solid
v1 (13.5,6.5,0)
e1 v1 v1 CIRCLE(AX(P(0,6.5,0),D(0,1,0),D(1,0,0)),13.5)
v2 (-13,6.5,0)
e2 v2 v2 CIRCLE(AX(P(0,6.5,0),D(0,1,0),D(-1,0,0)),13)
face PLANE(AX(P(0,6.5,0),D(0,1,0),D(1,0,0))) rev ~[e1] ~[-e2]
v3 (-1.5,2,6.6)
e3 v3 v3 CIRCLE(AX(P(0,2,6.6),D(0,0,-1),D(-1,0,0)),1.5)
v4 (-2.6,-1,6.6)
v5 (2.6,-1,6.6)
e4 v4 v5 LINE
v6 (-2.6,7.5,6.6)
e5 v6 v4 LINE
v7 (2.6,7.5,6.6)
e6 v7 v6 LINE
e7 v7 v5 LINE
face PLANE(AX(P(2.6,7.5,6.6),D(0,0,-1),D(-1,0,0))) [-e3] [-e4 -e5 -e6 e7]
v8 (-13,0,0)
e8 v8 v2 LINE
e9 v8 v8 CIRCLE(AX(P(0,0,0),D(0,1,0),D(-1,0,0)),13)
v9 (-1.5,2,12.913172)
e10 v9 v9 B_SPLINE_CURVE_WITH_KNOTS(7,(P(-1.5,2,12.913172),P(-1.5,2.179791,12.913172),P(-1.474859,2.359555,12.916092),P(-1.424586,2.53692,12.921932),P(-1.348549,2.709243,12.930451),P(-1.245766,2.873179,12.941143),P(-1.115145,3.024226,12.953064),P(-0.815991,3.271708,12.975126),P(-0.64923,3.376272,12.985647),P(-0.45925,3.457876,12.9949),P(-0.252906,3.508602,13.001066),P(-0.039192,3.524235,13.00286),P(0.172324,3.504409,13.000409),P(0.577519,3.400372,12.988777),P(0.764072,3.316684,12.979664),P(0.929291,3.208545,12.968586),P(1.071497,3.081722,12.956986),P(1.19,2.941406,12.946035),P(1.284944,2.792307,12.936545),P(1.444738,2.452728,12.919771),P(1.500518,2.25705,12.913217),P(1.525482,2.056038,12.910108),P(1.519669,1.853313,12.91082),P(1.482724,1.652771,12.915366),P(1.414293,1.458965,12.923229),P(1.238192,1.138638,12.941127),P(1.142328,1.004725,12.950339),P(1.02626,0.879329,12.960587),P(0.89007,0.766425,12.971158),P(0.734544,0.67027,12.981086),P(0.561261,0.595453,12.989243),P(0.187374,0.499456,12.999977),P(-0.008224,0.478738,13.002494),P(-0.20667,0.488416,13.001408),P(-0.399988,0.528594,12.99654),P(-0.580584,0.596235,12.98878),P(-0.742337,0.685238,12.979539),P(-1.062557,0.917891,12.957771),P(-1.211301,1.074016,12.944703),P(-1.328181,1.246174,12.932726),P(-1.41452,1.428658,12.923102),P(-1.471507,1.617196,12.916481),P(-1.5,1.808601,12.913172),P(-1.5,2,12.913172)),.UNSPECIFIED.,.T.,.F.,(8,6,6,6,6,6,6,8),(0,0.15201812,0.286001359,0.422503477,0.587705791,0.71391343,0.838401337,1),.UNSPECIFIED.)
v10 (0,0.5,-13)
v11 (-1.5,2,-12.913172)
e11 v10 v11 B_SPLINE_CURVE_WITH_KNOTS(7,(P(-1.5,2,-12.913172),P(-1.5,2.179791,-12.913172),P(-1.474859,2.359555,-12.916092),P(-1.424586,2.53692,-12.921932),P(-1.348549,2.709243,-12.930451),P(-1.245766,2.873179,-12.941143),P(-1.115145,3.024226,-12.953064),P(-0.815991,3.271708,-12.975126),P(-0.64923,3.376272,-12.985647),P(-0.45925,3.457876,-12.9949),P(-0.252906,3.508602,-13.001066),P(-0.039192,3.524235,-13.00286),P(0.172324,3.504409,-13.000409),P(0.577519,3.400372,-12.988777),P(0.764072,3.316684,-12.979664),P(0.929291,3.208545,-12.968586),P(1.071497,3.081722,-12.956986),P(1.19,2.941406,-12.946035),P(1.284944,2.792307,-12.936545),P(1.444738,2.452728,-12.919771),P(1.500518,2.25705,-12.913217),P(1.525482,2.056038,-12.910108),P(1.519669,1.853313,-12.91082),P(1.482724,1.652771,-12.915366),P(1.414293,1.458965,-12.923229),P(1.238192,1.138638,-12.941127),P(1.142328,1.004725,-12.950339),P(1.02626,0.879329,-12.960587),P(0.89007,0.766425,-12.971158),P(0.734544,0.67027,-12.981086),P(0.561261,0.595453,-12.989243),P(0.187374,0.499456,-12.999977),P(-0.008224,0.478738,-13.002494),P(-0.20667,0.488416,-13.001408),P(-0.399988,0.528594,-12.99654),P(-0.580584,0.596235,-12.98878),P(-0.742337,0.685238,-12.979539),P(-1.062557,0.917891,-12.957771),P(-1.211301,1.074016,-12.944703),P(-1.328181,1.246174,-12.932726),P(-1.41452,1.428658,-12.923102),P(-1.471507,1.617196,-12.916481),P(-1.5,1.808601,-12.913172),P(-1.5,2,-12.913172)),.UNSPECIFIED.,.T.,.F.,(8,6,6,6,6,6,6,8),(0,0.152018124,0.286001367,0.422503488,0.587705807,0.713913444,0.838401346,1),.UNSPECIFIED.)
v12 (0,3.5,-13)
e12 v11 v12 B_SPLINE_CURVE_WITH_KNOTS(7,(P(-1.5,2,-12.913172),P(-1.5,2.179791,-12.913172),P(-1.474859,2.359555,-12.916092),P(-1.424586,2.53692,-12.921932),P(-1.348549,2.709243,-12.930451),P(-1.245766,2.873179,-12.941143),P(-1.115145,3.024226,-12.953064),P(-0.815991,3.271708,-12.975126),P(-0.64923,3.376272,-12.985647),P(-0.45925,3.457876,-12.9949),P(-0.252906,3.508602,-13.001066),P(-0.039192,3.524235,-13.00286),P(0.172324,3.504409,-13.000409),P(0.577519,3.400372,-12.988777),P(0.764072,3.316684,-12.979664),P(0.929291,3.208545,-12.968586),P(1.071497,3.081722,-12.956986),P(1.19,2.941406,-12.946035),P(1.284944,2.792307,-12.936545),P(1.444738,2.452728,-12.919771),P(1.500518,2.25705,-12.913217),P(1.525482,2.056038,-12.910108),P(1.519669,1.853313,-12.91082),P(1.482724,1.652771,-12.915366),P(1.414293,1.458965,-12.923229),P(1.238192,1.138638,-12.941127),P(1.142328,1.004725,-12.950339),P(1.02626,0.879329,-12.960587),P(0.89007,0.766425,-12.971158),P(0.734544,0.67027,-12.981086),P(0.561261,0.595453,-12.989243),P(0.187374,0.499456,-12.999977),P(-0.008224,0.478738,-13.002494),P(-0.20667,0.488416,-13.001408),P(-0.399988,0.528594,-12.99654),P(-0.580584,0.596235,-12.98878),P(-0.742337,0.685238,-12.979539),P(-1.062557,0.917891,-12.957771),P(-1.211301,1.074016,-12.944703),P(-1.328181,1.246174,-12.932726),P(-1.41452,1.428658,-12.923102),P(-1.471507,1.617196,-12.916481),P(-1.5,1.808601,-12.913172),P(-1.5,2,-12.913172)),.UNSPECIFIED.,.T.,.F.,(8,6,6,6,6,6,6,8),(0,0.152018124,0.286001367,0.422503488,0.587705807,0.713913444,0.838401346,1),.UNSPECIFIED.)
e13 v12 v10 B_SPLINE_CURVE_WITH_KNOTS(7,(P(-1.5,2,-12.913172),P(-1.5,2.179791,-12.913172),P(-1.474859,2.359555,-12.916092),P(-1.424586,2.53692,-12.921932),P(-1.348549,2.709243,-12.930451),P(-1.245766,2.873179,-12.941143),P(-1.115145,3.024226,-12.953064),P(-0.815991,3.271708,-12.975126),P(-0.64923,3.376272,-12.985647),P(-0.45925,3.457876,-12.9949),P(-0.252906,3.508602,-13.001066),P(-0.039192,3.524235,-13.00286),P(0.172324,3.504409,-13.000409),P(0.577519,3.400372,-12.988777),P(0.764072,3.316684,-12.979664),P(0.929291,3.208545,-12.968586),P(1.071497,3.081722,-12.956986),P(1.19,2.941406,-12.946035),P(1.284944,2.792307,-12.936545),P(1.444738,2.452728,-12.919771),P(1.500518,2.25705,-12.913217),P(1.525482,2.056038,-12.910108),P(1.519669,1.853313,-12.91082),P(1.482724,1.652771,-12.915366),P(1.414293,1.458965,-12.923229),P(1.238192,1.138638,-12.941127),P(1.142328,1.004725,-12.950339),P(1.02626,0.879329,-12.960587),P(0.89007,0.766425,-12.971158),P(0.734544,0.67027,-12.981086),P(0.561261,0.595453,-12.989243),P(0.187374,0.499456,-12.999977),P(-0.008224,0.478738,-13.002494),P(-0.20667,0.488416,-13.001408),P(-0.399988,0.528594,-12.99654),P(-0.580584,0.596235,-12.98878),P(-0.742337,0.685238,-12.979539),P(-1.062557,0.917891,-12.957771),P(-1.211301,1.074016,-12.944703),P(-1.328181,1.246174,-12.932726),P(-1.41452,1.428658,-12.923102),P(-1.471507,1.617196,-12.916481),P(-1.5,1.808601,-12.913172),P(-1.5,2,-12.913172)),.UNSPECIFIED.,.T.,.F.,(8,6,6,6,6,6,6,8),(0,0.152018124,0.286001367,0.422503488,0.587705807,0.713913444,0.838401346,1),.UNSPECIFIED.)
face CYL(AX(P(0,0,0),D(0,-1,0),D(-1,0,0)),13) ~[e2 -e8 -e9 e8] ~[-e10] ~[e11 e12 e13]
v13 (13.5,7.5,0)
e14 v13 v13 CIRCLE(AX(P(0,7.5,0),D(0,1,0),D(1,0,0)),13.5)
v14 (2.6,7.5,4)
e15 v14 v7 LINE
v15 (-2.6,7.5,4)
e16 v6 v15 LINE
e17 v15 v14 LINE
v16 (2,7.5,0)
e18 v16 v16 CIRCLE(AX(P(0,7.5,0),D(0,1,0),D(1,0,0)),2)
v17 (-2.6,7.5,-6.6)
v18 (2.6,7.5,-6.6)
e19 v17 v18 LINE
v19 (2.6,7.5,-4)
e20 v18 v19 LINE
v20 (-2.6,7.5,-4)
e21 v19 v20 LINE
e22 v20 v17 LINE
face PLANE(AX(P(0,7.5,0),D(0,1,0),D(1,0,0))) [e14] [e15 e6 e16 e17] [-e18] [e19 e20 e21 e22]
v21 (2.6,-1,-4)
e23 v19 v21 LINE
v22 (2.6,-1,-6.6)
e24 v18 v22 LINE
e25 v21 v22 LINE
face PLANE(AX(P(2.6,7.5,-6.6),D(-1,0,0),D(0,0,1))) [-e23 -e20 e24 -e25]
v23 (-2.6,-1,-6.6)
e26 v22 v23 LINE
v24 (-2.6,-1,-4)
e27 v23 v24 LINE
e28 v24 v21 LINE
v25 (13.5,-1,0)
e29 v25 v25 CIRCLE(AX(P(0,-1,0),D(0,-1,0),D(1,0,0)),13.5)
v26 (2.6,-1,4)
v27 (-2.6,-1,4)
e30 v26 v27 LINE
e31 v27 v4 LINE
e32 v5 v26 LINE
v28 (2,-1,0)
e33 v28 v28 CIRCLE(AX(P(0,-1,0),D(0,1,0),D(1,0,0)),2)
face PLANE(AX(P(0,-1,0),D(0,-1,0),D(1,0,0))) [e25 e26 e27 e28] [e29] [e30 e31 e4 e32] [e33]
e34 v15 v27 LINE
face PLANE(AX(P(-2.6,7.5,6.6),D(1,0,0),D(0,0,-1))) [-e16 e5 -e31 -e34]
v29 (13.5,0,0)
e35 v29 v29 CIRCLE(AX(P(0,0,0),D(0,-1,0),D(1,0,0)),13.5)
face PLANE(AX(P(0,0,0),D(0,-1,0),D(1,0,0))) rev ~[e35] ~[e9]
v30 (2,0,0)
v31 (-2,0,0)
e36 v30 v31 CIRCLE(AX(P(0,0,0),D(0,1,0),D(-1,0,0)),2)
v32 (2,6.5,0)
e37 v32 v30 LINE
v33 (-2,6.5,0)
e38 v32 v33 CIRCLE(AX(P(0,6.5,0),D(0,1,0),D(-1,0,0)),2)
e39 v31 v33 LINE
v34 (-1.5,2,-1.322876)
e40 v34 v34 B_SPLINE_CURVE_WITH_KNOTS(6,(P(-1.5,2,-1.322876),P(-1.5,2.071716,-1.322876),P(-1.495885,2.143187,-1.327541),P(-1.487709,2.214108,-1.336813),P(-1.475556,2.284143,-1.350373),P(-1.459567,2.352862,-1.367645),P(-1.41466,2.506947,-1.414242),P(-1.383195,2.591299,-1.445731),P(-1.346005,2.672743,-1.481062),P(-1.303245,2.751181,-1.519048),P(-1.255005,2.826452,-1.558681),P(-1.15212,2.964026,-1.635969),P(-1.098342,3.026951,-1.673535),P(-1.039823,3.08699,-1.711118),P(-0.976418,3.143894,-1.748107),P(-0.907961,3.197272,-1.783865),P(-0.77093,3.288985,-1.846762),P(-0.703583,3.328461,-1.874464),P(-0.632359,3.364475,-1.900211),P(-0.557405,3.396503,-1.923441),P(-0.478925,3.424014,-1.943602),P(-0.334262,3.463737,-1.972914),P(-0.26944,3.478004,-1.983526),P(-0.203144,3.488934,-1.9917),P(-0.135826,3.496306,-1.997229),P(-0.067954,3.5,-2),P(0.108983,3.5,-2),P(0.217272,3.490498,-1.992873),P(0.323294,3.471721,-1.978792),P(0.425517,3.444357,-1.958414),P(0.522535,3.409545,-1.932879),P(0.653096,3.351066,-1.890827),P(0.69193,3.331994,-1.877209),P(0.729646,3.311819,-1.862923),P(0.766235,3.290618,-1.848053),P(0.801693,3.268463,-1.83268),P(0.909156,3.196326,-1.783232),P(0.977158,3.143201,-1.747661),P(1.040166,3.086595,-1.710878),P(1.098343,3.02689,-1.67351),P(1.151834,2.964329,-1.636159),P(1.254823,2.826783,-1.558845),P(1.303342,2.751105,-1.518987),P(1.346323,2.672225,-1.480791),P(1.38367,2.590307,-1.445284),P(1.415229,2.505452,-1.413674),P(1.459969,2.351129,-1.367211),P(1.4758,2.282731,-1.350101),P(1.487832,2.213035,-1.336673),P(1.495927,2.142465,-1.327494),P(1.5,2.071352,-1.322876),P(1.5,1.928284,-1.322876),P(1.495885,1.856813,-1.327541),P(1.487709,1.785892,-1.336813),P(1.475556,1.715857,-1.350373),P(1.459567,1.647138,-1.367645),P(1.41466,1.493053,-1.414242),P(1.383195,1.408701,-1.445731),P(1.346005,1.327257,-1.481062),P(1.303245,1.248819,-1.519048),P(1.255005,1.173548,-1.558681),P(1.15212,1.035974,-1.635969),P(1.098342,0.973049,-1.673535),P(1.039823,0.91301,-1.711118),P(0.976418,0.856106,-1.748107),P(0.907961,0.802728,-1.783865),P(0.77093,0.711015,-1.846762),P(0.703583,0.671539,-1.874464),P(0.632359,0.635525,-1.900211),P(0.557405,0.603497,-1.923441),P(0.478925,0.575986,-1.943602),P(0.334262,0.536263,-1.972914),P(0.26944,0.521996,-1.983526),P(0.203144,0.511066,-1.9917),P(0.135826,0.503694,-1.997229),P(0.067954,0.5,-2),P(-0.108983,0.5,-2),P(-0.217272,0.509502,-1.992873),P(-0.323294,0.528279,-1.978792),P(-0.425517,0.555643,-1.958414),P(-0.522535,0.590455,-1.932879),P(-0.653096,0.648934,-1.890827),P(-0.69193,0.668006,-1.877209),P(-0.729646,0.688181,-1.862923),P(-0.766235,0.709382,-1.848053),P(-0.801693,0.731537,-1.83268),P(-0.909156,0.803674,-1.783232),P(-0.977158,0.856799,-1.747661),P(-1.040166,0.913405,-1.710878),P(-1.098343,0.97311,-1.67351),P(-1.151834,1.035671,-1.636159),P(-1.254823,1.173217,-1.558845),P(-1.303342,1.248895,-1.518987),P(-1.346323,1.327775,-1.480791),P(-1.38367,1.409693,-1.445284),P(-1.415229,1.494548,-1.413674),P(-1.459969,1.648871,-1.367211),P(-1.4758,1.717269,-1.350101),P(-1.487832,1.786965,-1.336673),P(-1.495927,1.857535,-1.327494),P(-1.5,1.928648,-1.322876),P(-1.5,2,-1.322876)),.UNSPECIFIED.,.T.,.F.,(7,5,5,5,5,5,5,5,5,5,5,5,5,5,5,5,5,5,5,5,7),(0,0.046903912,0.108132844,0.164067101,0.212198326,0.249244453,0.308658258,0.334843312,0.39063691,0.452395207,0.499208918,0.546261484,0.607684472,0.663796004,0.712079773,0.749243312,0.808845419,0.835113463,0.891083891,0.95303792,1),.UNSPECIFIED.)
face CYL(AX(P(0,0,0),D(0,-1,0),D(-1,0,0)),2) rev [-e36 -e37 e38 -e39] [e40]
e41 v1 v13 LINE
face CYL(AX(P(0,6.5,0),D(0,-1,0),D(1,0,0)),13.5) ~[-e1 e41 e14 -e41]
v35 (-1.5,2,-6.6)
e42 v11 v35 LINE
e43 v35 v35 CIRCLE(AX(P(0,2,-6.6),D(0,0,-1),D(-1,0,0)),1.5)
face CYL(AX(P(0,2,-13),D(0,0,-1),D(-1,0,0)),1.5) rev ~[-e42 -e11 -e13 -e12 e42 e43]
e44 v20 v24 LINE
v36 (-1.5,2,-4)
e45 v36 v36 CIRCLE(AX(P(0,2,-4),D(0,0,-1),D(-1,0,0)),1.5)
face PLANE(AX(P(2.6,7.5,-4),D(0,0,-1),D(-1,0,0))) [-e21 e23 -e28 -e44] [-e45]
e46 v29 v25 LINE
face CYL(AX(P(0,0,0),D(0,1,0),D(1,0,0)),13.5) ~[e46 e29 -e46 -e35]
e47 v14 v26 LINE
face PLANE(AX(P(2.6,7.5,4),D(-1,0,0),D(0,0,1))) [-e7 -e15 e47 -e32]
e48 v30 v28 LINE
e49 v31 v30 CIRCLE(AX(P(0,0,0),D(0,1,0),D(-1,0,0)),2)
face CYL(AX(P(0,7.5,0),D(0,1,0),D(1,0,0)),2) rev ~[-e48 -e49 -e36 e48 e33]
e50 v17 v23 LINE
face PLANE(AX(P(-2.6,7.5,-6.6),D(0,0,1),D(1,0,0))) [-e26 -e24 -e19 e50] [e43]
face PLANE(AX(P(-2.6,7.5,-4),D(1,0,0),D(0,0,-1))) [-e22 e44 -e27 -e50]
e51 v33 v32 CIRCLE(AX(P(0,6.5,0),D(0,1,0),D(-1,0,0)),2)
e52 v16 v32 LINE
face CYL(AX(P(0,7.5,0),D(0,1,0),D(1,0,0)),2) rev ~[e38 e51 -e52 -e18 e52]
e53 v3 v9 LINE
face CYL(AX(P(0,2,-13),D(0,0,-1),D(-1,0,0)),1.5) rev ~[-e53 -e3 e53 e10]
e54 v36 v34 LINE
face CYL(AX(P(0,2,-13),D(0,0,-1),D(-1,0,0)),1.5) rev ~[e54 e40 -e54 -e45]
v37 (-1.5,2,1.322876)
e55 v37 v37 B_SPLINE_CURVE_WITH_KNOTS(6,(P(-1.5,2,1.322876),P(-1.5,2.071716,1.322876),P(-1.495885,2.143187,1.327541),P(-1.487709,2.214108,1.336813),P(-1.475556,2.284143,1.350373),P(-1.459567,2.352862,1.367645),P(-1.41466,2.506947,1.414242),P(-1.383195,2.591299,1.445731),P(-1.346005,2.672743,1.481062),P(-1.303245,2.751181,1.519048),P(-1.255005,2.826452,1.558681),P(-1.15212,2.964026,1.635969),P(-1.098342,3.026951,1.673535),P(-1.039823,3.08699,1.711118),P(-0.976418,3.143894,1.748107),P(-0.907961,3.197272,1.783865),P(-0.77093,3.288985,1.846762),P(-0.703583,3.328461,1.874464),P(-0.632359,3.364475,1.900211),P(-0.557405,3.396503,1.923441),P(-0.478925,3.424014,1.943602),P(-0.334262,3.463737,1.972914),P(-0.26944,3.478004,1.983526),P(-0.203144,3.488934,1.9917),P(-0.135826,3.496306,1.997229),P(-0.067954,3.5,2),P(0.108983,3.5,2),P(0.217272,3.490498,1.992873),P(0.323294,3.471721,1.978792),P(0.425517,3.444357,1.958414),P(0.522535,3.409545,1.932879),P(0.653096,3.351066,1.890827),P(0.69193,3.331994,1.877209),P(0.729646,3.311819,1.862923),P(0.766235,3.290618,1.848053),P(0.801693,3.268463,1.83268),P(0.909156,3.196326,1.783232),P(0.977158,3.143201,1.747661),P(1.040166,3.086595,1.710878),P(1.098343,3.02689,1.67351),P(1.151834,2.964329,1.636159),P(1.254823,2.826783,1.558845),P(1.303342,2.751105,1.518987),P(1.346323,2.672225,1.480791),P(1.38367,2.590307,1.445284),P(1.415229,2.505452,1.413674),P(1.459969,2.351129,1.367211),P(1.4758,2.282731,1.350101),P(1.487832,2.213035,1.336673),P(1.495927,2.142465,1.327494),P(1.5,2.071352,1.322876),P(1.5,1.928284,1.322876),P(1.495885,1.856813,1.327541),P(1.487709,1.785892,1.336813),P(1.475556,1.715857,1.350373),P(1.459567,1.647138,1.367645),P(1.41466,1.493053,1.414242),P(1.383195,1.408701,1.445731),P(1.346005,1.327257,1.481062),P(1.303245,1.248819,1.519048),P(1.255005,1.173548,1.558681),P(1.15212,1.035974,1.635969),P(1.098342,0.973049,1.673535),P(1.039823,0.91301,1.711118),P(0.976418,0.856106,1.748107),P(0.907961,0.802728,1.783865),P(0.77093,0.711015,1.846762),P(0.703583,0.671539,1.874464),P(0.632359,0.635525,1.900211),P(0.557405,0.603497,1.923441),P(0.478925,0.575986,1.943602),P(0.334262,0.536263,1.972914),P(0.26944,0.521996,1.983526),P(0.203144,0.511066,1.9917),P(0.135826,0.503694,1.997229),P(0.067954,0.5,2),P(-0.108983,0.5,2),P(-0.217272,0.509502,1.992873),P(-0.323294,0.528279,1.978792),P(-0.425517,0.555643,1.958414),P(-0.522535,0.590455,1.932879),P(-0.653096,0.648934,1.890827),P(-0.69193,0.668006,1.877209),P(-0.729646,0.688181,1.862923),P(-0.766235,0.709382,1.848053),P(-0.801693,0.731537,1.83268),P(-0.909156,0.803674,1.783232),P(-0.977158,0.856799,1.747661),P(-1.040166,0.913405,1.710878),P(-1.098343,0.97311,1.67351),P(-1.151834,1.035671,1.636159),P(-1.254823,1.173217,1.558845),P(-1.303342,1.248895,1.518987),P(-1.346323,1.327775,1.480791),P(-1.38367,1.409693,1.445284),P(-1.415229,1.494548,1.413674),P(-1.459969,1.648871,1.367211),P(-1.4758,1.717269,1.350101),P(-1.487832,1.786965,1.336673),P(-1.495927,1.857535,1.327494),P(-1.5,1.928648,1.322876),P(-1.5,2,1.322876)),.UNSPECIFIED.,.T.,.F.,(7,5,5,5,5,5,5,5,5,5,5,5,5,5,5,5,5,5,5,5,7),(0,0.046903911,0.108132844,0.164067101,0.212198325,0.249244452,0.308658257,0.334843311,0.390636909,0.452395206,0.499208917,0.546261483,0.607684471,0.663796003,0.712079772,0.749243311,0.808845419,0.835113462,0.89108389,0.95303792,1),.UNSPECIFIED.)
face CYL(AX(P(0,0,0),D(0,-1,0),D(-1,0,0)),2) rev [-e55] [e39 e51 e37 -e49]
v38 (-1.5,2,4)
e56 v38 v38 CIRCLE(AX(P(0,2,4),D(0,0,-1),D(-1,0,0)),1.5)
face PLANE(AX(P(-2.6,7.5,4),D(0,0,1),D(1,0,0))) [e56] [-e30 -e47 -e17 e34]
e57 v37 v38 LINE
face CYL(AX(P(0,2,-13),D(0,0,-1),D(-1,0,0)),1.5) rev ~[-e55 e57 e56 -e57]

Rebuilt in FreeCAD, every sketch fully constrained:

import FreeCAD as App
import Part
import Sketcher
from FreeCAD import Vector


def add_polygon(sketch, points):
    """Adds a closed chain of lines whose ends are joined by coincident constraints."""
    first, n = sketch.GeometryCount, len(points)
    for a, b in zip(points, points[1:] + points[:1]):
        sketch.addGeometry(Part.LineSegment(App.Vector(*a, 0), App.Vector(*b, 0)), False)
    for i in range(n):
        sketch.addConstraint(Sketcher.Constraint("Coincident", first + i, 2, first + (i + 1) % n, 1))

doc = App.newDocument("Part")
body = doc.addObject("PartDesign::Body", "Body")

sketch1 = body.newObject("Sketcher::SketchObject", "Sketch")
sketch1.AttachmentSupport = (doc.getObject("XZ_Plane"), [""])
sketch1.MapMode = "FlatFace"
sketch1.addGeometry([
    Part.Circle(Vector(0, 0, 0), Vector(0, 0, 1), 13),
    Part.Circle(Vector(0, 0, 0), Vector(0, 0, 1), 2),
], False)
sketch1.addConstraint([
    Sketcher.Constraint("Coincident", 0, 3, -1, 1),
    Sketcher.Constraint("Coincident", 1, 3, -1, 1),
    Sketcher.Constraint("Diameter", 0, 26.0),
    Sketcher.Constraint("Diameter", 1, 4.0),
])
pad1 = body.newObject("PartDesign::Pad", "Pad")
pad1.Profile = sketch1
pad1.Length = 6.5
pad1.Reversed = True

sketch2 = body.newObject("Sketcher::SketchObject", "Sketch001")
sketch2.AttachmentSupport = (doc.getObject("XZ_Plane"), [""])
sketch2.MapMode = "FlatFace"
sketch2.AttachmentOffset = App.Placement(Vector(0, 0, -6.5), App.Rotation())
sketch2.addGeometry(Part.Circle(Vector(0, 0, 0), Vector(0, 0, 1), 14), False)
sketch2.addConstraint([
    Sketcher.Constraint("Coincident", 0, 3, -1, 1),
    Sketcher.Constraint("Diameter", 0, 27.0),
])
pad2 = body.newObject("PartDesign::Pad", "Pad001")
pad2.Profile = sketch2
pad2.Length = 1
pad2.Reversed = True

sketch3 = body.newObject("Sketcher::SketchObject", "Sketch002")
sketch3.AttachmentSupport = (doc.getObject("XZ_Plane"), [""])
sketch3.MapMode = "FlatFace"
sketch3.addGeometry(Part.Circle(Vector(0, 0, 0), Vector(0, 0, 1), 14), False)
sketch3.addConstraint([
    Sketcher.Constraint("Coincident", 0, 3, -1, 1),
    Sketcher.Constraint("Diameter", 0, 27.0),
])
pad3 = body.newObject("PartDesign::Pad", "Pad002")
pad3.Profile = sketch3
pad3.Length = 1

sketch4 = body.newObject("Sketcher::SketchObject", "Sketch003")
sketch4.AttachmentSupport = (doc.getObject("XZ_Plane"), [""])
sketch4.MapMode = "FlatFace"
sketch4.AttachmentOffset = App.Placement(Vector(0, 0, -7.5), App.Rotation())
sketch4.addGeometry(Part.Circle(Vector(0, 0, 0), Vector(0, 0, 1), 2), False)
add_polygon(sketch4, [(-2.6, 6.6), (2.6, 6.6), (2.6, 4), (-2.6, 4)])
add_polygon(sketch4, [(-2.6, -4), (2.6, -4), (2.6, -6.6), (-2.6, -6.6)])
sketch4.addConstraint([
    Sketcher.Constraint("Horizontal", 1),
    Sketcher.Constraint("Vertical", 2),
    Sketcher.Constraint("Horizontal", 3),
    Sketcher.Constraint("Vertical", 4),
    Sketcher.Constraint("Horizontal", 5),
    Sketcher.Constraint("Vertical", 6),
    Sketcher.Constraint("Horizontal", 7),
    Sketcher.Constraint("Vertical", 8),
    Sketcher.Constraint("Coincident", 0, 3, -1, 1),
    Sketcher.Constraint("Symmetric", 3, 2, 5, 2, -1, 1),
    Sketcher.Constraint("Symmetric", 1, 2, 7, 2, -1, 1),
    Sketcher.Constraint("Vertical", 2, 2, 5, 2),
    Sketcher.Constraint("Diameter", 0, 4.0),
    Sketcher.Constraint("DistanceX", 1, 1, 1, 2, 5.2),
    Sketcher.Constraint("DistanceY", 2, 2, 2, 1, 2.6),
    Sketcher.Constraint("DistanceY", -1, 1, 2, 2, 4.0),
])
pocket1 = body.newObject("PartDesign::Pocket", "Pocket")
pocket1.Profile = sketch4
pocket1.Length = 8.75
pocket1.Reversed = True

sketch5 = body.newObject("Sketcher::SketchObject", "Sketch004")
sketch5.AttachmentSupport = (doc.getObject("XY_Plane"), [""])
sketch5.MapMode = "FlatFace"
sketch5.AttachmentOffset = App.Placement(Vector(0, 0, -13), App.Rotation())
sketch5.addGeometry(Part.Circle(Vector(0, 2, 0), Vector(0, 0, 1), 1.5), False)
sketch5.addConstraint([
    Sketcher.Constraint("PointOnObject", 0, 3, -2),
    Sketcher.Constraint("Diameter", 0, 3.0),
    Sketcher.Constraint("DistanceY", -1, 1, 0, 3, 2.0),
])
pocket2 = body.newObject("PartDesign::Pocket", "Pocket001")
pocket2.Profile = sketch5
pocket2.Length = 27
pocket2.Reversed = True

doc.recompute()
